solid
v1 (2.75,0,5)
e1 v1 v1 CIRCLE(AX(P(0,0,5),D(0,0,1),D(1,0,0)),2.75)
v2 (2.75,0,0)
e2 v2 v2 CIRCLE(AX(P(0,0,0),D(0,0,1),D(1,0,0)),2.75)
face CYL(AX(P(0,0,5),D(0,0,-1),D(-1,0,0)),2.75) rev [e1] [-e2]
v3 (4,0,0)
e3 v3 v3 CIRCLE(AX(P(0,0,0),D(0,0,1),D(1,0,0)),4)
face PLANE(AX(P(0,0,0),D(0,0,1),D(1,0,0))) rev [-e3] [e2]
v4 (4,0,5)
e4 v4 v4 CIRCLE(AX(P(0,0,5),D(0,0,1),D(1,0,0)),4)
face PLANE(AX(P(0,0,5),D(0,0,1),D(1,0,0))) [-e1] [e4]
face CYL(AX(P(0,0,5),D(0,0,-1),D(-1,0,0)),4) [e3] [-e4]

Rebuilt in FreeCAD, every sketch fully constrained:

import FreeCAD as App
import Part
import Sketcher
from FreeCAD import Vector

doc = App.newDocument("Part")
body = doc.addObject("PartDesign::Body", "Body")

# Sketch on XY plane
sketch1 = body.newObject("Sketcher::SketchObject", "Sketch")
sketch1.AttachmentSupport = (doc.getObject("XY_Plane"), [""])
sketch1.MapMode = "FlatFace"
sketch1.addGeometry([
    Part.Circle(Vector(0, 0, 0), Vector(0, 0, 1), 4),
    Part.Circle(Vector(0, 0, 0), Vector(0, 0, 1), 2.8),
], False)
sketch1.addConstraint([
    Sketcher.Constraint("Coincident", 0, 3, -1, 1),
    Sketcher.Constraint("Coincident", 1, 3, -1, 1),
    Sketcher.Constraint("Diameter", 0, 8.0),
    Sketcher.Constraint("Diameter", 1, 5.5),
])
pad1 = body.newObject("PartDesign::Pad", "Pad")
pad1.Profile = sketch1
pad1.Length = 5

doc.recompute()
